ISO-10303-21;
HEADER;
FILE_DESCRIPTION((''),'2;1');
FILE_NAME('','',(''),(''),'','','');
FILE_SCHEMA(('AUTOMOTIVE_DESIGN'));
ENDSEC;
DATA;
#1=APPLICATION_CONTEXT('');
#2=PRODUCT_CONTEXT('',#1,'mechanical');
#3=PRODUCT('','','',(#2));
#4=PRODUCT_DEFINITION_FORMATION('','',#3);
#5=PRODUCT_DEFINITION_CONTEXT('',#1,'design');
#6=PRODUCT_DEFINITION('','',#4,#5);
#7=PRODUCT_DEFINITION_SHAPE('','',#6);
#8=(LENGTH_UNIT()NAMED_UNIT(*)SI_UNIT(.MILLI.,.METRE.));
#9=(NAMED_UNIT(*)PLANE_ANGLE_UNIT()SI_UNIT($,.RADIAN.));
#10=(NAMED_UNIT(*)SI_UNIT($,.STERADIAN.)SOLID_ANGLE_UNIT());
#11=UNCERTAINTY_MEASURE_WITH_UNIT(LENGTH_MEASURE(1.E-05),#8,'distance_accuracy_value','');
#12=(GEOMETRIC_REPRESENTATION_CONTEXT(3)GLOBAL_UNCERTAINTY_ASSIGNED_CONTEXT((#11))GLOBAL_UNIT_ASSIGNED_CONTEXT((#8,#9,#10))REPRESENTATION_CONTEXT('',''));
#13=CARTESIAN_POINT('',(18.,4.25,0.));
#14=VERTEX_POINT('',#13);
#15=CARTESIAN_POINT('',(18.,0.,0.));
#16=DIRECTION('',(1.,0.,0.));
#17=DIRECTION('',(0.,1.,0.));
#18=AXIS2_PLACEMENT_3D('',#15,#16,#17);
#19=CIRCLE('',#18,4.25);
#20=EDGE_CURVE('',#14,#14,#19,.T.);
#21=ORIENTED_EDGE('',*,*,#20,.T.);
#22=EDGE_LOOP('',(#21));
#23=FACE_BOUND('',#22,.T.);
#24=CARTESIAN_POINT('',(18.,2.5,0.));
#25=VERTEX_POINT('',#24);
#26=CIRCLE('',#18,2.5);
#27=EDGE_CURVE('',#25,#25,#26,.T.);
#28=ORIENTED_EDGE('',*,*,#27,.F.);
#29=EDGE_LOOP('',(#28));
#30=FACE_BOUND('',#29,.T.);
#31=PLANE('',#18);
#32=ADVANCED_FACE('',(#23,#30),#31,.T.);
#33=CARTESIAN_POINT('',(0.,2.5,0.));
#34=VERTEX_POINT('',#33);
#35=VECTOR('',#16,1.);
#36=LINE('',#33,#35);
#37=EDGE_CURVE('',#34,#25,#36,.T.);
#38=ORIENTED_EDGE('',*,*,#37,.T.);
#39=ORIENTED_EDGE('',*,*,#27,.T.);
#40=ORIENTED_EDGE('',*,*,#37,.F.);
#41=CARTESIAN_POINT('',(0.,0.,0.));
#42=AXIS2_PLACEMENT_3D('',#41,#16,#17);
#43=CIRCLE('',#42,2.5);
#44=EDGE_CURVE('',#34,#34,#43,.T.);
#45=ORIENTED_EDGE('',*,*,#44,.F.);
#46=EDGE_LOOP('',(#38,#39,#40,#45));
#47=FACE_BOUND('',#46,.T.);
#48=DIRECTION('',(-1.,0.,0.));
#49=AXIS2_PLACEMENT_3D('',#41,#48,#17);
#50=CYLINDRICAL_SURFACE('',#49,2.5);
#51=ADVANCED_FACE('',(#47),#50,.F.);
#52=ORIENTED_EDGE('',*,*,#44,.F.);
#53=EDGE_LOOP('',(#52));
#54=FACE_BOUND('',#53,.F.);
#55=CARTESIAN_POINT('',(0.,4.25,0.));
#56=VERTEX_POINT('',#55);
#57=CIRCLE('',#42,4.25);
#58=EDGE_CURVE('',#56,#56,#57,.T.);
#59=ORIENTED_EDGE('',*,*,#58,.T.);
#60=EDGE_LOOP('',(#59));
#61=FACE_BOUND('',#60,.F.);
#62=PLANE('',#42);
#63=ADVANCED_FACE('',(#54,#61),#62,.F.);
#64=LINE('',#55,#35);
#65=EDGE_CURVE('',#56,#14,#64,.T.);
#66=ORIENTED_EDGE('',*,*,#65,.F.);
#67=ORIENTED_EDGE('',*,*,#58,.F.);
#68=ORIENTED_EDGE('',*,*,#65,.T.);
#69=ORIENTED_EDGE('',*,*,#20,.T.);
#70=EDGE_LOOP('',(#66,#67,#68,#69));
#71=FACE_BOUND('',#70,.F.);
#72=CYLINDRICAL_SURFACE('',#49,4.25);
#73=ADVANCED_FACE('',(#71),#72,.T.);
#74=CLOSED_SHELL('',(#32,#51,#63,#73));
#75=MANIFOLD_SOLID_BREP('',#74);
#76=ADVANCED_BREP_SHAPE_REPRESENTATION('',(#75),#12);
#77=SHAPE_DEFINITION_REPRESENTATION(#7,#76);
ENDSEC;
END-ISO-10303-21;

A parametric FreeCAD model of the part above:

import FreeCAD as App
import Part
import Sketcher
from FreeCAD import Vector
Q = App.Units.Quantity

doc = App.newDocument("Part")
body = doc.addObject("PartDesign::Body", "Body")

# Sketch on YZ plane
sketch1 = body.newObject("Sketcher::SketchObject", "Sketch")
sketch1.AttachmentSupport = (doc.getObject("YZ_Plane"), [""])
sketch1.MapMode = "FlatFace"
sketch1.addGeometry(Part.Circle(Vector(0, 0, 0), Vector(0, 0, 1), 4.2), False)
sketch1.addGeometry(Part.Circle(Vector(0, 0, 0), Vector(0, 0, 1), 2.5), False)
sketch1.addConstraint(Sketcher.Constraint("Coincident", 0, 3, -1, 1))
sketch1.addConstraint(Sketcher.Constraint("Coincident", 1, 3, -1, 1))
sketch1.addConstraint(Sketcher.Constraint("Diameter", 1, Q("5 mm")))
sketch1.addConstraint(Sketcher.Constraint("Diameter", 0, Q("8.5 mm")))
pad1 = body.newObject("PartDesign::Pad", "Pad")
pad1.Profile = sketch1
pad1.Length = 18

doc.recompute()
